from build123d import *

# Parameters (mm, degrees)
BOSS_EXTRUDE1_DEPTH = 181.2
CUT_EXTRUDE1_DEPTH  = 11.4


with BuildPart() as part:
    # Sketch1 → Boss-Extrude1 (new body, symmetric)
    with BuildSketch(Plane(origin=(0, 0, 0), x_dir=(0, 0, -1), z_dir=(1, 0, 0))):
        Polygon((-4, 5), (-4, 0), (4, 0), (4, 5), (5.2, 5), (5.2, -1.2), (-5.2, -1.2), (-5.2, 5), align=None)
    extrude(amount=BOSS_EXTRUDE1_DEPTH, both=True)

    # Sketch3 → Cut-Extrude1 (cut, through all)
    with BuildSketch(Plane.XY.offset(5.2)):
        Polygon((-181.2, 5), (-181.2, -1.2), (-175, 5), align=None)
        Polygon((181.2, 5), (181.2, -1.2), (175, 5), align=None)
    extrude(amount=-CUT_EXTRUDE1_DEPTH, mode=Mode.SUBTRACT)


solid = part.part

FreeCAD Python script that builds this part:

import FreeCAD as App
import Part
import Sketcher
Q = App.Units.Quantity

doc = App.newDocument("Part")
body = doc.addObject("PartDesign::Body", "Body")

# Sketch on YZ plane
sketch1 = body.newObject("Sketcher::SketchObject", "Sketch")
sketch1.AttachmentSupport = (doc.getObject("YZ_Plane"), [""])
sketch1.MapMode = "FlatFace"
sketch1.addGeometry(Part.LineSegment(App.Vector(0, 4, 0), App.Vector(5, 4, 0)), False)
sketch1.addGeometry(Part.LineSegment(App.Vector(5, 4, 0), App.Vector(5, 5.2, 0)), False)
sketch1.addGeometry(Part.LineSegment(App.Vector(5, 5.2, 0), App.Vector(-1.2, 5.2, 0)), False)
sketch1.addGeometry(Part.LineSegment(App.Vector(-1.2, 5.2, 0), App.Vector(-1.2, -5.2, 0)), False)
sketch1.addGeometry(Part.LineSegment(App.Vector(-1.2, -5.2, 0), App.Vector(5, -5.2, 0)), False)
sketch1.addGeometry(Part.LineSegment(App.Vector(5, -5.2, 0), App.Vector(5, -4, 0)), False)
sketch1.addGeometry(Part.LineSegment(App.Vector(5, -4, 0), App.Vector(0, -4, 0)), False)
sketch1.addGeometry(Part.LineSegment(App.Vector(0, -4, 0), App.Vector(0, 4, 0)), False)
sketch1.addConstraint(Sketcher.Constraint("Coincident", 0, 2, 1, 1))
sketch1.addConstraint(Sketcher.Constraint("Coincident", 1, 2, 2, 1))
sketch1.addConstraint(Sketcher.Constraint("Coincident", 2, 2, 3, 1))
sketch1.addConstraint(Sketcher.Constraint("Coincident", 3, 2, 4, 1))
sketch1.addConstraint(Sketcher.Constraint("Coincident", 4, 2, 5, 1))
sketch1.addConstraint(Sketcher.Constraint("Coincident", 5, 2, 6, 1))
sketch1.addConstraint(Sketcher.Constraint("Coincident", 6, 2, 7, 1))
sketch1.addConstraint(Sketcher.Constraint("Coincident", 7, 2, 0, 1))
sketch1.addConstraint(Sketcher.Constraint("Horizontal", 0))
sketch1.addConstraint(Sketcher.Constraint("Vertical", 1))
sketch1.addConstraint(Sketcher.Constraint("Horizontal", 2))
sketch1.addConstraint(Sketcher.Constraint("Vertical", 3))
sketch1.addConstraint(Sketcher.Constraint("Horizontal", 4))
sketch1.addConstraint(Sketcher.Constraint("Vertical", 5))
sketch1.addConstraint(Sketcher.Constraint("Horizontal", 6))
sketch1.addConstraint(Sketcher.Constraint("Vertical", 7))
sketch1.addConstraint(Sketcher.Constraint("Symmetric", 6, 2, 7, 2, -1, 1))
sketch1.addConstraint(Sketcher.Constraint("Symmetric", 1, 2, 4, 2, -1))
sketch1.addConstraint(Sketcher.Constraint("DistanceX", 0, 1, 0, 2, Q("5 mm")))
sketch1.addConstraint(Sketcher.Constraint("DistanceY", 7, 1, 7, 2, Q("8 mm")))
sketch1.addConstraint(Sketcher.Constraint("DistanceX", 2, 2, 2, 1, Q("6.2 mm")))
sketch1.addConstraint(Sketcher.Constraint("DistanceY", 1, 1, 1, 2, Q("1.2 mm")))
pad1 = body.newObject("PartDesign::Pad", "Pad")
pad1.Profile = sketch1
pad1.Length = 362.4
pad1.Midplane = True

# Sketch on XY plane
sketch2 = body.newObject("Sketcher::SketchObject", "Sketch001")
sketch2.AttachmentSupport = (doc.getObject("XY_Plane"), [""])
sketch2.MapMode = "FlatFace"
sketch2.AttachmentOffset = App.Placement(App.Vector(0, 0, 5.2), App.Rotation())
sketch2.addGeometry(Part.LineSegment(App.Vector(-181.2, 5, 0), App.Vector(-181.2, -1.2, 0)), False)
sketch2.addGeometry(Part.LineSegment(App.Vector(-181.2, -1.2, 0), App.Vector(-175, 5, 0)), False)
sketch2.addGeometry(Part.LineSegment(App.Vector(-175, 5, 0), App.Vector(-181.2, 5, 0)), False)
sketch2.addGeometry(Part.LineSegment(App.Vector(181.2, -1.2, 0), App.Vector(181.2, 5, 0)), False)
sketch2.addGeometry(Part.LineSegment(App.Vector(181.2, 5, 0), App.Vector(175, 5, 0)), False)
sketch2.addGeometry(Part.LineSegment(App.Vector(175, 5, 0), App.Vector(181.2, -1.2, 0)), False)
sketch2.addConstraint(Sketcher.Constraint("Coincident", 0, 2, 1, 1))
sketch2.addConstraint(Sketcher.Constraint("Coincident", 1, 2, 2, 1))
sketch2.addConstraint(Sketcher.Constraint("Coincident", 2, 2, 0, 1))
sketch2.addConstraint(Sketcher.Constraint("Coincident", 3, 2, 4, 1))
sketch2.addConstraint(Sketcher.Constraint("Coincident", 4, 2, 5, 1))
sketch2.addConstraint(Sketcher.Constraint("Coincident", 5, 2, 3, 1))
sketch2.addConstraint(Sketcher.Constraint("Vertical", 0))
sketch2.addConstraint(Sketcher.Constraint("Horizontal", 2))
sketch2.addConstraint(Sketcher.Constraint("Vertical", 3))
sketch2.addConstraint(Sketcher.Constraint("Horizontal", 4))
sketch2.addConstraint(Sketcher.Constraint("Symmetric", 2, 2, 3, 2, -2))
sketch2.addConstraint(Sketcher.Constraint("Perpendicular", 1, 5))
sketch2.addConstraint(Sketcher.Constraint("Horizontal", 0, 2, 5, 2))
sketch2.addConstraint(Sketcher.Constraint("Equal", 2, 4))
sketch2.addConstraint(Sketcher.Constraint("DistanceX", 2, 2, 2, 1, Q("6.2 mm")))
sketch2.addConstraint(Sketcher.Constraint("DistanceX", 1, 2, -1, 1, Q("175 mm")))
sketch2.addConstraint(Sketcher.Constraint("DistanceY", -1, 1, 1, 2, Q("5 mm")))
pocket1 = body.newObject("PartDesign::Pocket", "Pocket")
pocket1.Profile = sketch2
pocket1.Type = "ThroughAll"

doc.recompute()
